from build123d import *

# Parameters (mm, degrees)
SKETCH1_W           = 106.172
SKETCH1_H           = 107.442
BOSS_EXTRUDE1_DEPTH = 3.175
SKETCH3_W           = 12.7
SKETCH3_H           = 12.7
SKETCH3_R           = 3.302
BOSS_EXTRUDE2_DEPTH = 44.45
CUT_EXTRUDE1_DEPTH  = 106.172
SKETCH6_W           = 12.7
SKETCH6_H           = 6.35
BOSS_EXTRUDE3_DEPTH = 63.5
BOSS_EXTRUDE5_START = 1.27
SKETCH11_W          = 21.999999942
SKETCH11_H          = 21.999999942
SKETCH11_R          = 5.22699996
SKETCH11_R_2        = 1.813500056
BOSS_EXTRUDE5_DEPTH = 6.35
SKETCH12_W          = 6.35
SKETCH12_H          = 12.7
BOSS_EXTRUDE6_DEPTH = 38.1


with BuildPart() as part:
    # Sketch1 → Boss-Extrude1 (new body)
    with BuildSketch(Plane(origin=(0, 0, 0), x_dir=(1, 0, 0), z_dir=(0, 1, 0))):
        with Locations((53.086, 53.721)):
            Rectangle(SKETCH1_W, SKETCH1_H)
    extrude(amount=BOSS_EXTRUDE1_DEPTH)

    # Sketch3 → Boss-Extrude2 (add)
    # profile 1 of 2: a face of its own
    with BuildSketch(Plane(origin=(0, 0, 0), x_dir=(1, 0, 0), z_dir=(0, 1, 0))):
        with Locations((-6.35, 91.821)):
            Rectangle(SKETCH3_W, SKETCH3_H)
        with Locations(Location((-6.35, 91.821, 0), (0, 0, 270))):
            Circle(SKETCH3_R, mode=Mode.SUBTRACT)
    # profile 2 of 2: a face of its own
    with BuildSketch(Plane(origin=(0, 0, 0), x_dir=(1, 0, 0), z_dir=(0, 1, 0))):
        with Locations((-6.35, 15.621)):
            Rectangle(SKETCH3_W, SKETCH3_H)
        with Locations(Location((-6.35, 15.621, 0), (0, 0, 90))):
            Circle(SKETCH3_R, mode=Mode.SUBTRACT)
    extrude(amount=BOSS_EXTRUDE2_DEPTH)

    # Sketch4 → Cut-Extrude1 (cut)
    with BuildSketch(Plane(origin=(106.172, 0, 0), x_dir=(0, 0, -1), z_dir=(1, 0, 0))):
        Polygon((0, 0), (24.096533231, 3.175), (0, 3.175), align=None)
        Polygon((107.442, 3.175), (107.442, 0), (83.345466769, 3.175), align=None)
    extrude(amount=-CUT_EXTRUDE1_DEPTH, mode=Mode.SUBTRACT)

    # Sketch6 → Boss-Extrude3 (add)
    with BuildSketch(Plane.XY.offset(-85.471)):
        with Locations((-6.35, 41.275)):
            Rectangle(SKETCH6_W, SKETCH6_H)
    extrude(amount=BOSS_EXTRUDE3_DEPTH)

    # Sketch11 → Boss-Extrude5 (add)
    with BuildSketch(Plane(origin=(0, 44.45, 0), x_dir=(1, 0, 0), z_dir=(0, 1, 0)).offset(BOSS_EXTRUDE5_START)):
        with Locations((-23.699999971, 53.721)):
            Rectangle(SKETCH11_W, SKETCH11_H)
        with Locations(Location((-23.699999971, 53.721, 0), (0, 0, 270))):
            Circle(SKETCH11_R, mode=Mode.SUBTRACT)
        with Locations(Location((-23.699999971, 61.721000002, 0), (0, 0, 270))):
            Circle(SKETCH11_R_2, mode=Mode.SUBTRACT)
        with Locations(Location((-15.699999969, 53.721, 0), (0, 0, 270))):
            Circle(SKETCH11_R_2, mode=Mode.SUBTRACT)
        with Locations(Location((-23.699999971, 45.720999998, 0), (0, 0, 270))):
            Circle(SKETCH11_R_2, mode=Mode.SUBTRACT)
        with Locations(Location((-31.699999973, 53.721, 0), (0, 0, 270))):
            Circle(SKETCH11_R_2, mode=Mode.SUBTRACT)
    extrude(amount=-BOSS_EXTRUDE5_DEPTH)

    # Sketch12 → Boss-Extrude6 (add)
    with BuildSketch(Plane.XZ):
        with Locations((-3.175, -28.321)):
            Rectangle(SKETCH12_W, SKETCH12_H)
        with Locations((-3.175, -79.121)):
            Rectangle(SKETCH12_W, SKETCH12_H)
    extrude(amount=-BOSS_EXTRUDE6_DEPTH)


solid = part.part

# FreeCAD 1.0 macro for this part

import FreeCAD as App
import Part
import Sketcher

V = App.Vector
Q = App.Units.Quantity


def add_polygon(sketch, points):
    """Adds a closed chain of lines whose ends are joined by coincident constraints."""
    first, n = sketch.GeometryCount, len(points)
    for a, b in zip(points, points[1:] + points[:1]):
        sketch.addGeometry(Part.LineSegment(App.Vector(*a, 0), App.Vector(*b, 0)), False)
    for i in range(n):
        sketch.addConstraint(Sketcher.Constraint("Coincident", first + i, 2, first + (i + 1) % n, 1))

doc = App.newDocument("Part")
body = doc.addObject("PartDesign::Body", "Body")

# Sketch on XZ plane
sketch1 = doc.addObject("Sketcher::SketchObject", "Sketch")
body.addObject(sketch1)
sketch1.AttachmentSupport = (doc.XZ_Plane, [""])
sketch1.MapMode = "FlatFace"
add_polygon(sketch1, [(0, -107), (0, 0), (106, 0), (106, -107)])  # lines 0-3
sketch1.addConstraint(Sketcher.Constraint("Vertical", 0))
sketch1.addConstraint(Sketcher.Constraint("Horizontal", 1))
sketch1.addConstraint(Sketcher.Constraint("Vertical", 2))
sketch1.addConstraint(Sketcher.Constraint("Horizontal", 3))
sketch1.addConstraint(Sketcher.Constraint("Coincident", 0, 2, -1, 1))
sketch1.addConstraint(Sketcher.Constraint("DistanceX", 1, 1, 1, 2, Q("4.18 in")))
sketch1.addConstraint(Sketcher.Constraint("DistanceY", 0, 1, 0, 2, Q("4.23 in")))
pad1 = doc.addObject("PartDesign::Pad", "Pad")
body.addObject(pad1)
pad1.Profile = sketch1
pad1.Length = Q("0.125 in")
pad1.Reversed = True

# Sketch on XZ plane
sketch2 = doc.addObject("Sketcher::SketchObject", "Sketch001")
body.addObject(sketch2)
sketch2.AttachmentSupport = (doc.XZ_Plane, [""])
sketch2.MapMode = "FlatFace"
add_polygon(sketch2, [(-12.7, -98.2), (-12.7, -85.5), (0, -85.5), (0, -98.2)])  # lines 0-3
sketch2.addGeometry(Part.Circle(V(-6.3, -91.8, 0), V(0, 0, 1), 3.3), False)  # 4
add_polygon(sketch2, [(-12.7, -22), (-12.7, -9.3), (0, -9.3), (0, -22)])  # lines 5-8
sketch2.addGeometry(Part.Circle(V(-6.3, -15.6, 0), V(0, 0, 1), 3.3), False)  # 9
sketch2.addConstraint(Sketcher.Constraint("Vertical", 0))
sketch2.addConstraint(Sketcher.Constraint("Horizontal", 1))
sketch2.addConstraint(Sketcher.Constraint("Vertical", 2))
sketch2.addConstraint(Sketcher.Constraint("Horizontal", 3))
sketch2.addConstraint(Sketcher.Constraint("Vertical", 5))
sketch2.addConstraint(Sketcher.Constraint("Horizontal", 6))
sketch2.addConstraint(Sketcher.Constraint("Vertical", 7))
sketch2.addConstraint(Sketcher.Constraint("Horizontal", 8))
sketch2.addConstraint(Sketcher.Constraint("Equal", 4, 9))
sketch2.addConstraint(Sketcher.Constraint("PointOnObject", 1, 2, -2))
sketch2.addConstraint(Sketcher.Constraint("PointOnObject", 6, 2, -2))
sketch2.addConstraint(Sketcher.Constraint("Vertical", 4, 3, 9, 3))
sketch2.addConstraint(Sketcher.Constraint("Vertical", 3, 2, 5, 2))
sketch2.addConstraint(Sketcher.Constraint("Equal", 8, 0))
sketch2.addConstraint(Sketcher.Constraint("Equal", 2, 5))
sketch2.addConstraint(Sketcher.Constraint("Diameter", 4, Q("0.26 in")))
sketch2.addConstraint(Sketcher.Constraint("DistanceX", 1, 1, 1, 2, Q("0.5 in")))
sketch2.addConstraint(Sketcher.Constraint("DistanceY", 4, 3, 9, 3, Q("3 in")))
sketch2.addConstraint(Sketcher.Constraint("DistanceY", 0, 2, 5, 2, Q("3 in")))
sketch2.addConstraint(Sketcher.Constraint("DistanceX", 4, 3, -1, 1, Q("0.25 in")))
sketch2.addConstraint(Sketcher.Constraint("DistanceY", 4, 3, 0, 2, Q("0.25 in")))
sketch2.addConstraint(Sketcher.Constraint("DistanceY", 4, 3, -1, 1, Q("3.615 in")))
pad2 = doc.addObject("PartDesign::Pad", "Pad001")
body.addObject(pad2)
pad2.Profile = sketch2
pad2.Length = Q("1.75 in")
pad2.Reversed = True

# Sketch on YZ plane
sketch3 = doc.addObject("Sketcher::SketchObject", "Sketch002")
body.addObject(sketch3)
sketch3.AttachmentSupport = (doc.YZ_Plane, [""])
sketch3.MapMode = "FlatFace"
sketch3.AttachmentOffset = App.Placement(V(0, 0, 4.18 * 25.4), App.Rotation())
add_polygon(sketch3, [(0, 0), (3.2, -24.1), (3.2, 0)])  # lines 0-2
add_polygon(sketch3, [(0, -107.4), (3.2, -107.4), (3.2, -83.3)])  # lines 3-5
sketch3.addConstraint(Sketcher.Constraint("Vertical", 1))
sketch3.addConstraint(Sketcher.Constraint("Horizontal", 2))
sketch3.addConstraint(Sketcher.Constraint("Horizontal", 3))
sketch3.addConstraint(Sketcher.Constraint("Vertical", 4))
sketch3.addConstraint(Sketcher.Constraint("Coincident", 2, 2, -1, 1))
sketch3.addConstraint(Sketcher.Constraint("PointOnObject", 5, 2, -2))
sketch3.addConstraint(Sketcher.Constraint("Vertical", 1, 2, 3, 2))
sketch3.addConstraint(Sketcher.Constraint("Equal", 1, 4))
sketch3.addConstraint(Sketcher.Constraint("DistanceX", 2, 2, 2, 1, Q("0.125 in")))
sketch3.addConstraint(Sketcher.Constraint("DistanceY", 3, 2, -1, 1, Q("4.23 in")))
sketch3.addConstraint(Sketcher.Constraint("DistanceY", 1, 1, 1, 2, Q("24.096533 mm")))
pocket1 = doc.addObject("PartDesign::Pocket", "Pocket")
body.addObject(pocket1)
pocket1.Profile = sketch3
pocket1.Length = Q("4.18 in")

# Sketch on XY plane
sketch4 = doc.addObject("Sketcher::SketchObject", "Sketch003")
body.addObject(sketch4)
sketch4.AttachmentSupport = (doc.XY_Plane, [""])
sketch4.MapMode = "FlatFace"
sketch4.AttachmentOffset = App.Placement(V(0, 0, -3.365 * 25.4), App.Rotation())
add_polygon(sketch4, [(-13, 44), (-13, 38), (0, 38), (0, 44)])  # lines 0-3
sketch4.addConstraint(Sketcher.Constraint("Vertical", 0))
sketch4.addConstraint(Sketcher.Constraint("Horizontal", 1))
sketch4.addConstraint(Sketcher.Constraint("Vertical", 2))
sketch4.addConstraint(Sketcher.Constraint("Horizontal", 3))
sketch4.addConstraint(Sketcher.Constraint("PointOnObject", 1, 2, -2))
sketch4.addConstraint(Sketcher.Constraint("DistanceX", 1, 1, 1, 2, Q("0.5 in")))
sketch4.addConstraint(Sketcher.Constraint("DistanceY", 0, 2, 0, 1, Q("0.25 in")))
sketch4.addConstraint(Sketcher.Constraint("DistanceY", -1, 1, 0, 2, Q("1.5 in")))
pad3 = doc.addObject("PartDesign::Pad", "Pad002")
body.addObject(pad3)
pad3.Profile = sketch4
pad3.Length = Q("2.5 in")

# Sketch on XZ plane
sketch5 = doc.addObject("Sketcher::SketchObject", "Sketch004")
body.addObject(sketch5)
sketch5.AttachmentSupport = (doc.XZ_Plane, [""])
sketch5.MapMode = "FlatFace"
sketch5.AttachmentOffset = App.Placement(V(0, 0, -1.8 * 25.4), App.Rotation())
add_polygon(sketch5, [(-34.7, -64.7), (-34.7, -42.7), (-12.7, -42.7), (-12.7, -64.7)])  # lines 0-3
sketch5.addGeometry(Part.Circle(V(-31.7, -53.7, 0), V(0, 0, 1), 1.8), False)  # 4
sketch5.addGeometry(Part.Circle(V(-23.7, -45.7, 0), V(0, 0, 1), 1.8), False)  # 5
sketch5.addGeometry(Part.Circle(V(-23.7, -53.7, 0), V(0, 0, 1), 5.2), False)  # 6
sketch5.addGeometry(Part.Circle(V(-15.7, -53.7, 0), V(0, 0, 1), 1.8), False)  # 7
sketch5.addGeometry(Part.Circle(V(-23.7, -61.7, 0), V(0, 0, 1), 1.8), False)  # 8
sketch5.addConstraint(Sketcher.Constraint("Vertical", 0))
sketch5.addConstraint(Sketcher.Constraint("Horizontal", 1))
sketch5.addConstraint(Sketcher.Constraint("Vertical", 2))
sketch5.addConstraint(Sketcher.Constraint("Horizontal", 3))
sketch5.addConstraint(Sketcher.Constraint("Equal", 4, 5))
sketch5.addConstraint(Sketcher.Constraint("Equal", 5, 7))
sketch5.addConstraint(Sketcher.Constraint("Equal", 7, 8))
sketch5.addConstraint(Sketcher.Constraint("Horizontal", 4, 3, 6, 3))
sketch5.addConstraint(Sketcher.Constraint("Horizontal", 6, 3, 7, 3))
sketch5.addConstraint(Sketcher.Constraint("Vertical", 5, 3, 6, 3))
sketch5.addConstraint(Sketcher.Constraint("Vertical", 6, 3, 8, 3))
sketch5.addConstraint(Sketcher.Constraint("Equal", 3, 0))
sketch5.addConstraint(Sketcher.Constraint("DistanceX", 1, 2, -1, 1, Q("0.5 in")))
sketch5.addConstraint(Sketcher.Constraint("Diameter", 4, Q("3.627 mm")))
sketch5.addConstraint(Sketcher.Constraint("Diameter", 6, Q("10.454 mm")))
sketch5.addConstraint(Sketcher.Constraint("DistanceY", 4, 3, -1, 1, Q("2.115 in")))
sketch5.addConstraint(Sketcher.Constraint("DistanceX", 1, 1, 1, 2, Q("22 mm")))
sketch5.addConstraint(Sketcher.Constraint("DistanceX", 4, 3, -1, 1, Q("31.7 mm")))
sketch5.addConstraint(Sketcher.Constraint("DistanceX", 5, 3, -1, 1, Q("23.7 mm")))
sketch5.addConstraint(Sketcher.Constraint("DistanceY", 5, 3, -1, 1, Q("45.721 mm")))
sketch5.addConstraint(Sketcher.Constraint("DistanceX", 7, 3, -1, 1, Q("15.7 mm")))
sketch5.addConstraint(Sketcher.Constraint("DistanceY", 8, 3, -1, 1, Q("61.721 mm")))
sketch5.addConstraint(Sketcher.Constraint("DistanceY", 0, 2, -1, 1, Q("42.721 mm")))
pad4 = doc.addObject("PartDesign::Pad", "Pad003")
body.addObject(pad4)
pad4.Profile = sketch5
pad4.Length = Q("0.25 in")

# Sketch on XZ plane
sketch6 = doc.addObject("Sketcher::SketchObject", "Sketch005")
body.addObject(sketch6)
sketch6.AttachmentSupport = (doc.XZ_Plane, [""])
sketch6.MapMode = "FlatFace"
add_polygon(sketch6, [(-6, -22), (-6, -35), (0, -35), (0, -22)])  # lines 0-3
add_polygon(sketch6, [(-6, -73), (-6, -85), (0, -85), (0, -73)])  # lines 4-7
sketch6.addConstraint(Sketcher.Constraint("Vertical", 0))
sketch6.addConstraint(Sketcher.Constraint("Horizontal", 1))
sketch6.addConstraint(Sketcher.Constraint("Vertical", 2))
sketch6.addConstraint(Sketcher.Constraint("Horizontal", 3))
sketch6.addConstraint(Sketcher.Constraint("Vertical", 4))
sketch6.addConstraint(Sketcher.Constraint("Horizontal", 5))
sketch6.addConstraint(Sketcher.Constraint("Vertical", 6))
sketch6.addConstraint(Sketcher.Constraint("Horizontal", 7))
sketch6.addConstraint(Sketcher.Constraint("PointOnObject", 1, 2, -2))
sketch6.addConstraint(Sketcher.Constraint("PointOnObject", 5, 2, -2))
sketch6.addConstraint(Sketcher.Constraint("Vertical", 3, 2, 4, 2))
sketch6.addConstraint(Sketcher.Constraint("Equal", 2, 4))
sketch6.addConstraint(Sketcher.Constraint("DistanceY", 0, 2, 0, 1, Q("0.5 in")))
sketch6.addConstraint(Sketcher.Constraint("DistanceY", 4, 2, 0, 2, Q("2 in")))
sketch6.addConstraint(Sketcher.Constraint("DistanceX", 1, 1, 1, 2, Q("0.25 in")))
sketch6.addConstraint(Sketcher.Constraint("DistanceY", 0, 2, -1, 1, Q("1.365 in")))
pad5 = doc.addObject("PartDesign::Pad", "Pad004")
body.addObject(pad5)
pad5.Profile = sketch6
pad5.Length = Q("1.5 in")
pad5.Reversed = True

doc.recompute()
